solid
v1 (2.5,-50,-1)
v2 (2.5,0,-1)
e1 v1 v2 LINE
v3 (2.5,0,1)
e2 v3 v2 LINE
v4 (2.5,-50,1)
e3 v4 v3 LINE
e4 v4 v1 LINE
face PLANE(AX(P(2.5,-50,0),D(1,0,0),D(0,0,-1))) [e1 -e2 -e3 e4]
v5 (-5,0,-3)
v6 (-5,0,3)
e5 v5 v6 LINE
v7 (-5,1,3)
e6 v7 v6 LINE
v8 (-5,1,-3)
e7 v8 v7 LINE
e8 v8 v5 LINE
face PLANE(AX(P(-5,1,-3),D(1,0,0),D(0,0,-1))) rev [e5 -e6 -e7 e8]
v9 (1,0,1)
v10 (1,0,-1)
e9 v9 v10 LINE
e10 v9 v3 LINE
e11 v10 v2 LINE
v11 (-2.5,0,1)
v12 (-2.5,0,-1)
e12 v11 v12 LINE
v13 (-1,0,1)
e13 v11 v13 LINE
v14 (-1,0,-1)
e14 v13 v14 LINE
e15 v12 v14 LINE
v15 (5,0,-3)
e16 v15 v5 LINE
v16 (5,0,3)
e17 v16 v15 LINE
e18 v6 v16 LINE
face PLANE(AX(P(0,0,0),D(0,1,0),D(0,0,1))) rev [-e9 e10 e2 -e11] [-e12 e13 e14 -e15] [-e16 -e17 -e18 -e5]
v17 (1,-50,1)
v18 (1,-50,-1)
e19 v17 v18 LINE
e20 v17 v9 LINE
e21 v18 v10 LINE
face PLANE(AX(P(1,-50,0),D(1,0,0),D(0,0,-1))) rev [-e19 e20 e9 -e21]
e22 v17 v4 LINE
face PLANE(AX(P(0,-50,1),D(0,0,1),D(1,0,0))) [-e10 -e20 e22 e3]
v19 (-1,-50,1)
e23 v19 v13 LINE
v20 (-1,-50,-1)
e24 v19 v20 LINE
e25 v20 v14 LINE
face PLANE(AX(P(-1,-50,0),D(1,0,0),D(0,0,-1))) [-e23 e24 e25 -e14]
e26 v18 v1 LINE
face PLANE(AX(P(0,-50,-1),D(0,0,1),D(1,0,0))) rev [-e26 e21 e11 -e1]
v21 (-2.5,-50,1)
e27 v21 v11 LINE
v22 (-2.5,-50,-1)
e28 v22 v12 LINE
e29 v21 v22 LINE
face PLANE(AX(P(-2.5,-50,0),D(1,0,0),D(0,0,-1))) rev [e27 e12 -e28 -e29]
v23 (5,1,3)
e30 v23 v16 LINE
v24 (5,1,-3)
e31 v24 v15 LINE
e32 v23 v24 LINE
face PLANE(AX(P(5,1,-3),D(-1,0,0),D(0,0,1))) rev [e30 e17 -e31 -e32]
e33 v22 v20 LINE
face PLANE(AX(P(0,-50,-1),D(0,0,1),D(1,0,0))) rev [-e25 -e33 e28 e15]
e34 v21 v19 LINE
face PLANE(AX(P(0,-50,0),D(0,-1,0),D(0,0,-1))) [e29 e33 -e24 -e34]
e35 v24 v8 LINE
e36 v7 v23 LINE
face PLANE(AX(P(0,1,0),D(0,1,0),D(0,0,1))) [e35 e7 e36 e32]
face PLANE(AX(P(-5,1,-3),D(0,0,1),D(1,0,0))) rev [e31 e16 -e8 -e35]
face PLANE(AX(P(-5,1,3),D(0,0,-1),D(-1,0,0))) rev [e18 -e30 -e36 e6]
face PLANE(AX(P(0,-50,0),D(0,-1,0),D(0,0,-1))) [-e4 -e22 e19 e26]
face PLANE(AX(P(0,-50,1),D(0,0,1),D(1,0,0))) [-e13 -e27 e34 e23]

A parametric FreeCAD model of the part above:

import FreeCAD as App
import Part
import Sketcher
Q = App.Units.Quantity


def add_polygon(sketch, points):
    """Adds a closed chain of lines whose ends are joined by coincident constraints."""
    first, n = sketch.GeometryCount, len(points)
    for a, b in zip(points, points[1:] + points[:1]):
        sketch.addGeometry(Part.LineSegment(App.Vector(*a, 0), App.Vector(*b, 0)), False)
    for i in range(n):
        sketch.addConstraint(Sketcher.Constraint("Coincident", first + i, 2, first + (i + 1) % n, 1))

doc = App.newDocument("Part")
body = doc.addObject("PartDesign::Body", "Body")

# Sketch on XZ plane
sketch1 = body.newObject("Sketcher::SketchObject", "Sketch")
sketch1.AttachmentSupport = (doc.getObject("XZ_Plane"), [""])
sketch1.MapMode = "FlatFace"
add_polygon(sketch1, [(-5, -3), (-5, 3), (5, 3), (5, -3)])  # lines 0-3
sketch1.addConstraint([
    Sketcher.Constraint("Vertical", 0),
    Sketcher.Constraint("Horizontal", 1),
    Sketcher.Constraint("Vertical", 2),
    Sketcher.Constraint("Horizontal", 3),
    Sketcher.Constraint("Symmetric", 0, 2, 2, 2, -1, 1),
    Sketcher.Constraint("DistanceX", 1, 1, 1, 2, Q("10 mm")),
    Sketcher.Constraint("DistanceY", 0, 1, 0, 2, Q("6 mm")),
])
pad1 = body.newObject("PartDesign::Pad", "Pad")
pad1.Profile = sketch1
pad1.Length = 1
pad1.Reversed = True

# Sketch on XZ plane
sketch2 = body.newObject("Sketcher::SketchObject", "Sketch001")
sketch2.AttachmentSupport = (doc.getObject("XZ_Plane"), [""])
sketch2.MapMode = "FlatFace"
add_polygon(sketch2, [(-2.5, 1), (-2.5, -1), (-1, -1), (-1, 1)])  # lines 0-3
add_polygon(sketch2, [(1, 1), (1, -1), (2.5, -1), (2.5, 1)])  # lines 4-7
sketch2.addConstraint([
    Sketcher.Constraint("Vertical", 0),
    Sketcher.Constraint("Horizontal", 1),
    Sketcher.Constraint("Vertical", 2),
    Sketcher.Constraint("Horizontal", 3),
    Sketcher.Constraint("Vertical", 4),
    Sketcher.Constraint("Horizontal", 5),
    Sketcher.Constraint("Vertical", 6),
    Sketcher.Constraint("Horizontal", 7),
    Sketcher.Constraint("Symmetric", 2, 2, 4, 2, -1, 1),
    Sketcher.Constraint("Symmetric", 0, 2, 6, 2, -1, 1),
    Sketcher.Constraint("Horizontal", 1, 2, 4, 2),
    Sketcher.Constraint("DistanceY", 0, 2, 0, 1, Q("2 mm")),
    Sketcher.Constraint("DistanceX", 1, 1, 1, 2, Q("1.5 mm")),
    Sketcher.Constraint("DistanceX", 1, 2, -1, 1, Q("1 mm")),
])
pad2 = body.newObject("PartDesign::Pad", "Pad001")
pad2.Profile = sketch2
pad2.Length = 50

doc.recompute()
